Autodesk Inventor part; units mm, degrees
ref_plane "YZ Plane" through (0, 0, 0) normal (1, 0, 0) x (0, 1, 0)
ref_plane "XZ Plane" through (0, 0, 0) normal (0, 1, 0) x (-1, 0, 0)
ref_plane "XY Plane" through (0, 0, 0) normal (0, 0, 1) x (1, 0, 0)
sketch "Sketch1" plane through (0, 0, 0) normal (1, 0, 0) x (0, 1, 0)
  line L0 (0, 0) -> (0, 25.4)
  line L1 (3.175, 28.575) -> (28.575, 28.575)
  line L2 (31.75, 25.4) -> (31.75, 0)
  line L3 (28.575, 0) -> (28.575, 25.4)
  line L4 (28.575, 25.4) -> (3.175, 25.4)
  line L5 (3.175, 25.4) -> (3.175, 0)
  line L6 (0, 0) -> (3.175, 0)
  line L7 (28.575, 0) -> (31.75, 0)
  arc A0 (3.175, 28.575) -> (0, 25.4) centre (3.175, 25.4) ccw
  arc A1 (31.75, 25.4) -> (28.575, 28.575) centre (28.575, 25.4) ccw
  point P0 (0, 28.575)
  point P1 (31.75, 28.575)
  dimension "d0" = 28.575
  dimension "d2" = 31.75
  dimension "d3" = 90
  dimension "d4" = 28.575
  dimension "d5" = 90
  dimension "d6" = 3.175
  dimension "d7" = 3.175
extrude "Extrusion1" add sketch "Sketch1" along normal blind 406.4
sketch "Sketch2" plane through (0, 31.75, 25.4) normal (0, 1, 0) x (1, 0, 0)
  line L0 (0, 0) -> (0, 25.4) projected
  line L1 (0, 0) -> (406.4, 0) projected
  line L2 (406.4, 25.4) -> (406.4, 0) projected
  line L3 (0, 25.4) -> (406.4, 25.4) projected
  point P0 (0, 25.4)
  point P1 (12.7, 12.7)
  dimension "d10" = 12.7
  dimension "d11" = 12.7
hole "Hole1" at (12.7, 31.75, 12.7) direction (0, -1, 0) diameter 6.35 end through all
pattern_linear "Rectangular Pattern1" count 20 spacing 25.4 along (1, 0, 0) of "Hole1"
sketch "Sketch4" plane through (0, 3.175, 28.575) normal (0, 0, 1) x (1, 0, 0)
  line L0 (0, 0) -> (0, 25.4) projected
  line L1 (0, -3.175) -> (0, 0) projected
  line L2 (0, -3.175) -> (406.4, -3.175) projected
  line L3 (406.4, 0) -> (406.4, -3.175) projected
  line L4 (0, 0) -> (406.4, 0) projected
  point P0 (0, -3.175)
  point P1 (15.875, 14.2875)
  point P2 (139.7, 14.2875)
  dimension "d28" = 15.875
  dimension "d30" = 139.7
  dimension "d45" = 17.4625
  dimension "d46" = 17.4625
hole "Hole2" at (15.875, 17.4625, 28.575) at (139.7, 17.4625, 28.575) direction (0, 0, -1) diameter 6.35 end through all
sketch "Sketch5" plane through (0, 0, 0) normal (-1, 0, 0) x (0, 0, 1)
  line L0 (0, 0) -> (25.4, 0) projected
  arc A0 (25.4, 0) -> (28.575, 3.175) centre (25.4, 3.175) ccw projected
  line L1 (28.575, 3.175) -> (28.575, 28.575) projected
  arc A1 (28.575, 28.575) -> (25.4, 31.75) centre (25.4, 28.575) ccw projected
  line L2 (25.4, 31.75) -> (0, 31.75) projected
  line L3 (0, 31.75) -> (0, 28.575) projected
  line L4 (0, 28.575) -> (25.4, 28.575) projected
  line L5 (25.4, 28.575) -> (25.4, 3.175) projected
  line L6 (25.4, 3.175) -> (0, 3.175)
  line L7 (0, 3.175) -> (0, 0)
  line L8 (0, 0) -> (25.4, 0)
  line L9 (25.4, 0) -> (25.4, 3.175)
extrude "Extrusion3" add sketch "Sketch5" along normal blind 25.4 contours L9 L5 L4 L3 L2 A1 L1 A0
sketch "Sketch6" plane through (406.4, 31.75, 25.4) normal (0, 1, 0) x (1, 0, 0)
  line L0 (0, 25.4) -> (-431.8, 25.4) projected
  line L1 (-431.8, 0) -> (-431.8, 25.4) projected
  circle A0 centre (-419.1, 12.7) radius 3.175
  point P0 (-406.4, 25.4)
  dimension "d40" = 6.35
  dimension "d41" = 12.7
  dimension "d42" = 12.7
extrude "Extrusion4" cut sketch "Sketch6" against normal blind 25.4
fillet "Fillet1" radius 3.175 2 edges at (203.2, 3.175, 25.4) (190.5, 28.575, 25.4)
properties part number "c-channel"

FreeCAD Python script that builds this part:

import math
import FreeCAD as App
import Part
import Sketcher
from FreeCAD import Vector
Q = App.Units.Quantity


def edges_at(feature, points):
    """Names of the edges that pass closest to the given points."""
    edges = feature.Shape.Edges
    near = lambda p: min(range(len(edges)), key=lambda i: edges[i].distToShape(Part.Vertex(*p))[0])
    return sorted({f"Edge{near(p) + 1}" for p in points})

doc = App.newDocument("Part")
params = doc.addObject("Spreadsheet::Sheet", "Params")
for row, (alias, value) in enumerate([
    ("sketch1_radius", "0.125 in"),
    ("sketch1_width", "1 in"),
    ("pad1_length", "16 in"),
    ("sketch2_diameter", "0.25 in"),
    ("hole_diameter", "0.25 in"),
    ("linearpattern_pitch", "1 in"),
    ("sketch3_diameter", "0.25 in"),
    ("hole2_diameter", "0.25 in"),
    ("sketch4_width", "1 in"),
    ("sketch4_radius", "0.125 in"),
    ("pad2_length", "1 in"),
    ("sketch5_diameter", "0.25 in"),
    ("pocket1_length", "1 in"),
    ("fillet_radius", "0.125 in"),
], start=1):
    params.set(f"A{row}", alias)
    params.set(f"B{row}", "=" + value)
    params.setAlias(f"B{row}", alias)

body = doc.addObject("PartDesign::Body", "Body")

sketch1 = doc.addObject("Sketcher::SketchObject", "Sketch")
body.addObject(sketch1)
sketch1.AttachmentSupport = (doc.YZ_Plane, [""])
sketch1.MapMode = "FlatFace"
sketch1.addGeometry([
    Part.LineSegment(Vector(0, 25.4, 0), Vector(0, 0, 0)),
    Part.LineSegment(Vector(0, 0, 0), Vector(3.2, 0, 0)),
    Part.LineSegment(Vector(3.2, 0, 0), Vector(3.2, 25.4, 0)),
    Part.LineSegment(Vector(3.2, 25.4, 0), Vector(28.6, 25.4, 0)),
    Part.LineSegment(Vector(28.6, 25.4, 0), Vector(28.6, 0, 0)),
    Part.LineSegment(Vector(28.6, 0, 0), Vector(31.8, 0, 0)),
    Part.LineSegment(Vector(31.8, 0, 0), Vector(31.8, 25.4, 0)),
    Part.ArcOfCircle(Part.Circle(Vector(28.6, 25.4, 0), Vector(0, 0, 1), 3.2), math.radians(0), math.radians(90)),
    Part.LineSegment(Vector(28.6, 28.6, 0), Vector(3.2, 28.6, 0)),
    Part.ArcOfCircle(Part.Circle(Vector(3.2, 25.4, 0), Vector(0, 0, 1), 3.2), math.radians(90), math.radians(180)),
], False)
sketch1.addConstraint([
    Sketcher.Constraint("Coincident", 0, 2, 1, 1),
    Sketcher.Constraint("Coincident", 1, 2, 2, 1),
    Sketcher.Constraint("Coincident", 2, 2, 3, 1),
    Sketcher.Constraint("Coincident", 3, 2, 4, 1),
    Sketcher.Constraint("Coincident", 4, 2, 5, 1),
    Sketcher.Constraint("Coincident", 5, 2, 6, 1),
    Sketcher.Constraint("Tangent", 6, 2, 7, 1),
    Sketcher.Constraint("Tangent", 7, 2, 8, 1),
    Sketcher.Constraint("Tangent", 8, 2, 9, 1),
    Sketcher.Constraint("Tangent", 9, 2, 0, 1),
    Sketcher.Constraint("Vertical", 0),
    Sketcher.Constraint("Horizontal", 1),
    Sketcher.Constraint("Vertical", 2),
    Sketcher.Constraint("Horizontal", 3),
    Sketcher.Constraint("Vertical", 4),
    Sketcher.Constraint("Horizontal", 5),
    Sketcher.Constraint("Vertical", 6),
    Sketcher.Constraint("Horizontal", 8),
    Sketcher.Constraint("Coincident", 0, 2, -1, 1),
    Sketcher.Constraint("Coincident", 2, 2, 9, 3),
    Sketcher.Constraint("Coincident", 3, 2, 7, 3),
    Sketcher.Constraint("PointOnObject", 4, 2, -1),
    Sketcher.Constraint("Equal", 8, 0),
    Sketcher.Constraint("Radius", 7, Q("0.125 in")),
    Sketcher.Constraint("DistanceX", 3, 1, 3, 2, Q("1 in")),
])
sketch1.setExpression("Constraints[23]", "Params.sketch1_radius")
sketch1.setExpression("Constraints[24]", "Params.sketch1_width")
pad1 = doc.addObject("PartDesign::Pad", "Pad")
body.addObject(pad1)
pad1.Profile = sketch1
pad1.setExpression("Length", "Params.pad1_length")

sketch2 = doc.addObject("Sketcher::SketchObject", "Sketch001")
body.addObject(sketch2)
sketch2.AttachmentSupport = (doc.XZ_Plane, [""])
sketch2.MapMode = "FlatFace"
sketch2.AttachmentOffset = App.Placement(Vector(0, 0, -1.25 * 25.4), App.Rotation())
sketch2.addGeometry(Part.Circle(Vector(12.7, 12.7, 0), Vector(0, 0, 1), 3.2), False)
sketch2.addConstraint([
    Sketcher.Constraint("Diameter", 0, Q("0.25 in")),
    Sketcher.Constraint("DistanceX", -1, 1, 0, 3, Q("0.5 in")),
    Sketcher.Constraint("DistanceY", -1, 1, 0, 3, Q("0.5 in")),
])
sketch2.setExpression("Constraints[0]", "Params.sketch2_diameter")
doc.recompute()
hole = doc.addObject("PartDesign::Hole", "Hole")
body.addObject(hole)
hole.Profile = sketch2
hole.ThreadType = "None"
hole.setExpression("Diameter", "Params.hole_diameter")
hole.DepthType = "ThroughAll"
hole.Reversed = True
doc.recompute()

linearpattern = doc.addObject("PartDesign::LinearPattern", "LinearPattern")
body.addObject(linearpattern)
linearpattern.Originals = [hole]
linearpattern.Direction = (doc.X_Axis, [""])
linearpattern.Mode = "offset"
linearpattern.setExpression("Offset", "Params.linearpattern_pitch")
linearpattern.Occurrences = 20
body.Tip = linearpattern

sketch3 = doc.addObject("Sketcher::SketchObject", "Sketch002")
body.addObject(sketch3)
sketch3.AttachmentSupport = (doc.XY_Plane, [""])
sketch3.MapMode = "FlatFace"
sketch3.AttachmentOffset = App.Placement(Vector(0, 0, 1.125 * 25.4), App.Rotation())
sketch3.addGeometry([
    Part.Circle(Vector(15.9, 17.5, 0), Vector(0, 0, 1), 3.2),
    Part.Circle(Vector(139.7, 17.5, 0), Vector(0, 0, 1), 3.2),
], False)
sketch3.addConstraint([
    Sketcher.Constraint("Equal", 0, 1),
    Sketcher.Constraint("Horizontal", 0, 3, 1, 3),
    Sketcher.Constraint("Diameter", 0, Q("0.25 in")),
    Sketcher.Constraint("DistanceX", -1, 1, 1, 3, Q("5.5 in")),
    Sketcher.Constraint("DistanceX", -1, 1, 0, 3, Q("0.625 in")),
    Sketcher.Constraint("DistanceY", -1, 1, 0, 3, Q("0.6875 in")),
])
sketch3.setExpression("Constraints[2]", "Params.sketch3_diameter")
doc.recompute()
hole2 = doc.addObject("PartDesign::Hole", "Hole001")
body.addObject(hole2)
hole2.Profile = sketch3
hole2.ThreadType = "None"
hole2.setExpression("Diameter", "Params.hole2_diameter")
hole2.DepthType = "ThroughAll"

sketch4 = doc.addObject("Sketcher::SketchObject", "Sketch003")
body.addObject(sketch4)
sketch4.AttachmentSupport = (doc.YZ_Plane, [""])
sketch4.MapMode = "FlatFace"
sketch4.addGeometry([
    Part.LineSegment(Vector(28.6, 25.4, 0), Vector(0, 25.4, 0)),
    Part.ArcOfCircle(Part.Circle(Vector(3.2, 25.4, 0), Vector(0, 0, 1), 3.2), math.radians(90), math.radians(180)),
    Part.LineSegment(Vector(3.2, 28.6, 0), Vector(28.6, 28.6, 0)),
    Part.ArcOfCircle(Part.Circle(Vector(28.6, 25.4, 0), Vector(0, 0, 1), 3.2), math.radians(0), math.radians(90)),
    Part.LineSegment(Vector(31.8, 25.4, 0), Vector(31.8, 0, 0)),
    Part.LineSegment(Vector(31.8, 0, 0), Vector(28.6, 0, 0)),
    Part.LineSegment(Vector(28.6, 0, 0), Vector(28.6, 25.4, 0)),
], False)
sketch4.addConstraint([
    Sketcher.Constraint("Coincident", 0, 2, 1, 2),
    Sketcher.Constraint("Tangent", 1, 1, 2, 1),
    Sketcher.Constraint("Tangent", 2, 2, 3, 2),
    Sketcher.Constraint("Tangent", 3, 1, 4, 1),
    Sketcher.Constraint("Coincident", 4, 2, 5, 1),
    Sketcher.Constraint("Coincident", 5, 2, 6, 1),
    Sketcher.Constraint("Coincident", 6, 2, 0, 1),
    Sketcher.Constraint("Horizontal", 0),
    Sketcher.Constraint("Horizontal", 2),
    Sketcher.Constraint("Vertical", 4),
    Sketcher.Constraint("Horizontal", 5),
    Sketcher.Constraint("Vertical", 6),
    Sketcher.Constraint("Coincident", 6, 2, 3, 3),
    Sketcher.Constraint("Equal", 1, 3),
    Sketcher.Constraint("PointOnObject", 0, 2, -2),
    Sketcher.Constraint("PointOnObject", 4, 2, -1),
    Sketcher.Constraint("Equal", 2, 4),
    Sketcher.Constraint("DistanceX", 2, 1, 2, 2, Q("1 in")),
    Sketcher.Constraint("Radius", 1, Q("0.125 in")),
])
sketch4.setExpression("Constraints[17]", "Params.sketch4_width")
sketch4.setExpression("Constraints[18]", "Params.sketch4_radius")
pad2 = doc.addObject("PartDesign::Pad", "Pad001")
body.addObject(pad2)
pad2.Profile = sketch4
pad2.setExpression("Length", "Params.pad2_length")
pad2.Reversed = True

sketch5 = doc.addObject("Sketcher::SketchObject", "Sketch004")
body.addObject(sketch5)
sketch5.AttachmentSupport = (doc.XZ_Plane, [""])
sketch5.MapMode = "FlatFace"
sketch5.AttachmentOffset = App.Placement(Vector(0, 0, -1.25 * 25.4), App.Rotation())
sketch5.addGeometry(Part.Circle(Vector(-12.7, 12.7, 0), Vector(0, 0, 1), 3.2), False)
sketch5.addConstraint([
    Sketcher.Constraint("Diameter", 0, Q("0.25 in")),
    Sketcher.Constraint("DistanceX", 0, 3, -1, 1, Q("0.5 in")),
    Sketcher.Constraint("DistanceY", -1, 1, 0, 3, Q("0.5 in")),
])
sketch5.setExpression("Constraints[0]", "Params.sketch5_diameter")
pocket1 = doc.addObject("PartDesign::Pocket", "Pocket")
body.addObject(pocket1)
pocket1.Profile = sketch5
pocket1.setExpression("Length", "Params.pocket1_length")
pocket1.Reversed = True
doc.recompute()

fillet = doc.addObject("PartDesign::Fillet", "Fillet")
body.addObject(fillet)
fillet.Base = (pocket1, edges_at(pocket1, [(203.2, 3.175, 25.4), (190.5, 28.575, 25.4)]))
fillet.setExpression("Radius", "Params.fillet_radius")

doc.recompute()
